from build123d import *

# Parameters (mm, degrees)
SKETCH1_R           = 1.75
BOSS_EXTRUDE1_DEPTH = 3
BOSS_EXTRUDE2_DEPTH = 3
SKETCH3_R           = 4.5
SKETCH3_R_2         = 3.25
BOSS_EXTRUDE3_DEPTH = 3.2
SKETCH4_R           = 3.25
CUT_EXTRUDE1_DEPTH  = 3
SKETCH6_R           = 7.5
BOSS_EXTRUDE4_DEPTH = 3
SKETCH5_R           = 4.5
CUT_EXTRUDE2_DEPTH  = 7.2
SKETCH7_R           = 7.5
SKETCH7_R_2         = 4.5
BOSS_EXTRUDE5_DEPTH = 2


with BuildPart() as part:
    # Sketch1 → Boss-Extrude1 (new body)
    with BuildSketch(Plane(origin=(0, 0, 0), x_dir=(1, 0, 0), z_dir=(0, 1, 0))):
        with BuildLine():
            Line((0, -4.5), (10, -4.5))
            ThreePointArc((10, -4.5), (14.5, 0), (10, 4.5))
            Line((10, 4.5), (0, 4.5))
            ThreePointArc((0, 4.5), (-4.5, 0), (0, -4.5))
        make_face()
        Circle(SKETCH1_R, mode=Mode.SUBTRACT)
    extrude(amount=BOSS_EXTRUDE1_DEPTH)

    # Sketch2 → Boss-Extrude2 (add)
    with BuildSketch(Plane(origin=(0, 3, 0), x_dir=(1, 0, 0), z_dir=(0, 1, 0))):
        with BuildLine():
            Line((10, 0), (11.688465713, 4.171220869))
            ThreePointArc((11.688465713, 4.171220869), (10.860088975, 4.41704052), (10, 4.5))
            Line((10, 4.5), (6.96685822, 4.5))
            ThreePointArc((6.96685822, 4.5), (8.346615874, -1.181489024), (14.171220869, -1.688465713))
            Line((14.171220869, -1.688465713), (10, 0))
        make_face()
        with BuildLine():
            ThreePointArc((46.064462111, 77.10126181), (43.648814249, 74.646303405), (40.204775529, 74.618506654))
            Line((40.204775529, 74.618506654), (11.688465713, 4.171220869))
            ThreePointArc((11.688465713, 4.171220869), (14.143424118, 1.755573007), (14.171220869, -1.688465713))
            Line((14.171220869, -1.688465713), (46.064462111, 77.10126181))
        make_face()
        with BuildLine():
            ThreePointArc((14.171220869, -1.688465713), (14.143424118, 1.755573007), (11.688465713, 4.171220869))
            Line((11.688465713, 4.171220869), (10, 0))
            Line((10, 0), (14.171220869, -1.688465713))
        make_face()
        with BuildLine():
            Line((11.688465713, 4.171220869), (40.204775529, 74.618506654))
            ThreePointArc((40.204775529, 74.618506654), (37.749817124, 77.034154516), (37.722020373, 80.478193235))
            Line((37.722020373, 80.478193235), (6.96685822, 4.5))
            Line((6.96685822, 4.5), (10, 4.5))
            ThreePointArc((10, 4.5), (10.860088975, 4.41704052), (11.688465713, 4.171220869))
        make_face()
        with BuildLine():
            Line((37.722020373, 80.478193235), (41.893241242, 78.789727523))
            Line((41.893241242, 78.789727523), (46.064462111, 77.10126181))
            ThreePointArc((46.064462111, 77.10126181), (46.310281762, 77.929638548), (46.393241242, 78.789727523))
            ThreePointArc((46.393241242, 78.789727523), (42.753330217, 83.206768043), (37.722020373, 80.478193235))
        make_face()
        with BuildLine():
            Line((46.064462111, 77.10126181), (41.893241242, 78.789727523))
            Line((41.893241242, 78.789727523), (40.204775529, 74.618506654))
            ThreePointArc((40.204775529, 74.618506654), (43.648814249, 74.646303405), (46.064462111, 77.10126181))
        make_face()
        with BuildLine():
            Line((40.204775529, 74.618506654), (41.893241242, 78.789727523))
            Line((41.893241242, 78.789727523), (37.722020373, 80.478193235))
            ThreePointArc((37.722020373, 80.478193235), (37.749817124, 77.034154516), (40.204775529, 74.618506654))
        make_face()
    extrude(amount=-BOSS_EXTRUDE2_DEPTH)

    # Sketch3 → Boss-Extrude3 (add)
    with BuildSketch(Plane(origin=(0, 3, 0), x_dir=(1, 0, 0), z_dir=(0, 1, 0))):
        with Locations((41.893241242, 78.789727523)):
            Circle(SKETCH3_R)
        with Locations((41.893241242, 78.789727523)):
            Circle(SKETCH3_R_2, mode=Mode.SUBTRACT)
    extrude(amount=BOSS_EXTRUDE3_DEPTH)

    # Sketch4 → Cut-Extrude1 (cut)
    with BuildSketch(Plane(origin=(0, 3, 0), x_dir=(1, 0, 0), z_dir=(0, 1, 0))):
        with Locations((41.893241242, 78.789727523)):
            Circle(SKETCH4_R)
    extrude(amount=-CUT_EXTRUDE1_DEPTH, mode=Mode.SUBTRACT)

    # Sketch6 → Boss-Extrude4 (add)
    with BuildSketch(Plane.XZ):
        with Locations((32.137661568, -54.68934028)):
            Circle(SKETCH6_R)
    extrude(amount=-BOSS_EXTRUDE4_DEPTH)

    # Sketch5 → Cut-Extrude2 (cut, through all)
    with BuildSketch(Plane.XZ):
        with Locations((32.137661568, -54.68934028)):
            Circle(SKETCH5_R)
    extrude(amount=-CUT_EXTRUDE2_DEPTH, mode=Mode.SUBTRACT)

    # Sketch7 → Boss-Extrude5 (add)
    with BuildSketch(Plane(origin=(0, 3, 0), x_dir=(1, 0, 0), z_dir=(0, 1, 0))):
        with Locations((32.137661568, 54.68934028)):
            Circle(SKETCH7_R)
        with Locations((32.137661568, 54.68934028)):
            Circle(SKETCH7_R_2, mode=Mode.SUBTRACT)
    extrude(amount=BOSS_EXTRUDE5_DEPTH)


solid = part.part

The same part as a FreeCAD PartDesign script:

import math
import FreeCAD as App
import Part
import Sketcher

V = App.Vector

doc = App.newDocument("Part")
body = doc.addObject("PartDesign::Body", "Body")

# Sketch on XZ plane
sketch1 = body.newObject("Sketcher::SketchObject", "Sketch")
sketch1.AttachmentSupport = (doc.getObject("XZ_Plane"), [""])
sketch1.MapMode = "FlatFace"
sketch1.addGeometry([
    Part.LineSegment(V(0, 4.5, 0), V(10, 4.5, 0)),  # 0
    Part.ArcOfCircle(Part.Circle(V(10, 0, 0), V(0, 0, 1), 4.5), math.radians(-90), math.radians(90)),  # 1
    Part.LineSegment(V(10, -4.5, 0), V(0, -4.5, 0)),  # 2
    Part.ArcOfCircle(Part.Circle(V(0, 0, 0), V(0, 0, 1), 4.5), math.radians(90), math.radians(270)),  # 3
    Part.Circle(V(0, 0, 0), V(0, 0, 1), 1.75),  # 4
], False)
sketch1.addConstraint([
    Sketcher.Constraint("Tangent", 0, 2, 1, 2),
    Sketcher.Constraint("Tangent", 1, 1, 2, 1),
    Sketcher.Constraint("Tangent", 2, 2, 3, 2),
    Sketcher.Constraint("Tangent", 3, 1, 0, 1),
    Sketcher.Constraint("Horizontal", 0),
    Sketcher.Constraint("Horizontal", 2),
    Sketcher.Constraint("Coincident", 3, 3, -1, 1),
    Sketcher.Constraint("Coincident", 4, 3, -1, 1),
    Sketcher.Constraint("Diameter", 4, 3.5),
    Sketcher.Constraint("Radius", 1, 4.5),
    Sketcher.Constraint("DistanceX", 0, 1, 0, 2, 10.0),
])
pad1 = body.newObject("PartDesign::Pad", "Pad")
pad1.Profile = sketch1
pad1.Length = 3
pad1.Reversed = True

# Sketch on XZ plane
sketch2 = body.newObject("Sketcher::SketchObject", "Sketch001")
sketch2.AttachmentSupport = (doc.getObject("XZ_Plane"), [""])
sketch2.MapMode = "FlatFace"
sketch2.AttachmentOffset = App.Placement(V(0, 0, -3), App.Rotation())
sketch2.addGeometry([
    Part.LineSegment(V(14.171221, 1.688466, 0), V(46.064462, -77.101262, 0)),  # 0
    Part.ArcOfCircle(Part.Circle(V(41.893241, -78.789728, 0), V(0, 0, 1), 4.5), math.radians(0), math.radians(22.037577)),  # 1
    Part.ArcOfCircle(Part.Circle(V(41.893241, -78.789728, 0), V(0, 0, 1), 4.5), math.radians(-157.962423), math.radians(0)),  # 2
    Part.LineSegment(V(37.72202, -80.478193, 0), V(6.966858, -4.5, 0)),  # 3
    Part.ArcOfCircle(Part.Circle(V(11.611845, -2.619759, 0), V(0, 0, 1), 5.011108), math.radians(59.286831), math.radians(202.037577)),  # 4
], False)
sketch2.addConstraint([
    Sketcher.Constraint("Tangent", 0, 2, 1, 2),
    Sketcher.Constraint("Tangent", 1, 1, 2, 2),
    Sketcher.Constraint("Tangent", 2, 1, 3, 1),
    Sketcher.Constraint("Tangent", 3, 2, 4, 2),
    Sketcher.Constraint("Coincident", 4, 1, 0, 1),
    Sketcher.Constraint("Equal", 1, 2),
    Sketcher.Constraint("Parallel", 0, 3),
    Sketcher.Constraint("Horizontal", 2, 3, 1, 1),
    Sketcher.Constraint("Radius", 1, 4.5),
    Sketcher.Constraint("Distance", 0, 85.0),
    Sketcher.Constraint("DistanceY", 3, 2, -1, 1, 4.5),
    Sketcher.Constraint("Radius", 4, 5.011108),
    Sketcher.Constraint("DistanceX", -1, 1, 1, 3, 41.893241),
    Sketcher.Constraint("DistanceY", 4, 3, -1, 1, 2.619759),
])
pad2 = body.newObject("PartDesign::Pad", "Pad001")
pad2.Profile = sketch2
pad2.Length = 3

# Sketch on XZ plane
sketch3 = body.newObject("Sketcher::SketchObject", "Sketch002")
sketch3.AttachmentSupport = (doc.getObject("XZ_Plane"), [""])
sketch3.MapMode = "FlatFace"
sketch3.AttachmentOffset = App.Placement(V(0, 0, -3), App.Rotation())
sketch3.addGeometry([
    Part.Circle(V(41.893241, -78.789728, 0), V(0, 0, 1), 4.5),
    Part.Circle(V(41.893241, -78.789728, 0), V(0, 0, 1), 3.25),
], False)
sketch3.addConstraint([
    Sketcher.Constraint("Coincident", 1, 3, 0, 3),
    Sketcher.Constraint("Diameter", 0, 9.0),
    Sketcher.Constraint("Diameter", 1, 6.5),
    Sketcher.Constraint("DistanceX", -1, 1, 0, 3, 41.893241),
    Sketcher.Constraint("DistanceY", 0, 3, -1, 1, 78.789728),
])
pad3 = body.newObject("PartDesign::Pad", "Pad002")
pad3.Profile = sketch3
pad3.Length = 3.2
pad3.Reversed = True

# Sketch on XZ plane
sketch4 = body.newObject("Sketcher::SketchObject", "Sketch003")
sketch4.AttachmentSupport = (doc.getObject("XZ_Plane"), [""])
sketch4.MapMode = "FlatFace"
sketch4.AttachmentOffset = App.Placement(V(0, 0, -3), App.Rotation())
sketch4.addGeometry(Part.Circle(V(41.893241, -78.789728, 0), V(0, 0, 1), 3.25), False)
sketch4.addConstraint([
    Sketcher.Constraint("Diameter", 0, 6.5),
    Sketcher.Constraint("DistanceX", -1, 1, 0, 3, 41.893241),
    Sketcher.Constraint("DistanceY", 0, 3, -1, 1, 78.789728),
])
pocket1 = body.newObject("PartDesign::Pocket", "Pocket")
pocket1.Profile = sketch4
pocket1.Length = 3
pocket1.Reversed = True

# Sketch on XZ plane
sketch5 = body.newObject("Sketcher::SketchObject", "Sketch004")
sketch5.AttachmentSupport = (doc.getObject("XZ_Plane"), [""])
sketch5.MapMode = "FlatFace"
sketch5.addGeometry(Part.Circle(V(32.137662, -54.68934, 0), V(0, 0, 1), 7.5), False)
sketch5.addConstraint([
    Sketcher.Constraint("Diameter", 0, 15.0),
    Sketcher.Constraint("DistanceX", -1, 1, 0, 3, 32.137662),
    Sketcher.Constraint("DistanceY", 0, 3, -1, 1, 54.68934),
])
pad4 = body.newObject("PartDesign::Pad", "Pad003")
pad4.Profile = sketch5
pad4.Length = 3
pad4.Reversed = True

# Sketch on XZ plane
sketch6 = body.newObject("Sketcher::SketchObject", "Sketch005")
sketch6.AttachmentSupport = (doc.getObject("XZ_Plane"), [""])
sketch6.MapMode = "FlatFace"
sketch6.addGeometry(Part.Circle(V(32.137662, -54.68934, 0), V(0, 0, 1), 4.5), False)
sketch6.addConstraint([
    Sketcher.Constraint("Diameter", 0, 9.0),
    Sketcher.Constraint("DistanceX", -1, 1, 0, 3, 32.137662),
    Sketcher.Constraint("DistanceY", 0, 3, -1, 1, 54.68934),
])
pocket2 = body.newObject("PartDesign::Pocket", "Pocket001")
pocket2.Profile = sketch6
pocket2.Type = "ThroughAll"

# Sketch on XZ plane
sketch7 = body.newObject("Sketcher::SketchObject", "Sketch006")
sketch7.AttachmentSupport = (doc.getObject("XZ_Plane"), [""])
sketch7.MapMode = "FlatFace"
sketch7.AttachmentOffset = App.Placement(V(0, 0, -3), App.Rotation())
sketch7.addGeometry([
    Part.Circle(V(32.137662, -54.68934, 0), V(0, 0, 1), 7.5),
    Part.Circle(V(32.137662, -54.68934, 0), V(0, 0, 1), 4.5),
], False)
sketch7.addConstraint([
    Sketcher.Constraint("Coincident", 1, 3, 0, 3),
    Sketcher.Constraint("Diameter", 0, 15.0),
    Sketcher.Constraint("Diameter", 1, 9.0),
    Sketcher.Constraint("DistanceX", -1, 1, 0, 3, 32.137662),
    Sketcher.Constraint("DistanceY", 0, 3, -1, 1, 54.68934),
])
pad5 = body.newObject("PartDesign::Pad", "Pad004")
pad5.Profile = sketch7
pad5.Length = 2
pad5.Reversed = True

doc.recompute()
